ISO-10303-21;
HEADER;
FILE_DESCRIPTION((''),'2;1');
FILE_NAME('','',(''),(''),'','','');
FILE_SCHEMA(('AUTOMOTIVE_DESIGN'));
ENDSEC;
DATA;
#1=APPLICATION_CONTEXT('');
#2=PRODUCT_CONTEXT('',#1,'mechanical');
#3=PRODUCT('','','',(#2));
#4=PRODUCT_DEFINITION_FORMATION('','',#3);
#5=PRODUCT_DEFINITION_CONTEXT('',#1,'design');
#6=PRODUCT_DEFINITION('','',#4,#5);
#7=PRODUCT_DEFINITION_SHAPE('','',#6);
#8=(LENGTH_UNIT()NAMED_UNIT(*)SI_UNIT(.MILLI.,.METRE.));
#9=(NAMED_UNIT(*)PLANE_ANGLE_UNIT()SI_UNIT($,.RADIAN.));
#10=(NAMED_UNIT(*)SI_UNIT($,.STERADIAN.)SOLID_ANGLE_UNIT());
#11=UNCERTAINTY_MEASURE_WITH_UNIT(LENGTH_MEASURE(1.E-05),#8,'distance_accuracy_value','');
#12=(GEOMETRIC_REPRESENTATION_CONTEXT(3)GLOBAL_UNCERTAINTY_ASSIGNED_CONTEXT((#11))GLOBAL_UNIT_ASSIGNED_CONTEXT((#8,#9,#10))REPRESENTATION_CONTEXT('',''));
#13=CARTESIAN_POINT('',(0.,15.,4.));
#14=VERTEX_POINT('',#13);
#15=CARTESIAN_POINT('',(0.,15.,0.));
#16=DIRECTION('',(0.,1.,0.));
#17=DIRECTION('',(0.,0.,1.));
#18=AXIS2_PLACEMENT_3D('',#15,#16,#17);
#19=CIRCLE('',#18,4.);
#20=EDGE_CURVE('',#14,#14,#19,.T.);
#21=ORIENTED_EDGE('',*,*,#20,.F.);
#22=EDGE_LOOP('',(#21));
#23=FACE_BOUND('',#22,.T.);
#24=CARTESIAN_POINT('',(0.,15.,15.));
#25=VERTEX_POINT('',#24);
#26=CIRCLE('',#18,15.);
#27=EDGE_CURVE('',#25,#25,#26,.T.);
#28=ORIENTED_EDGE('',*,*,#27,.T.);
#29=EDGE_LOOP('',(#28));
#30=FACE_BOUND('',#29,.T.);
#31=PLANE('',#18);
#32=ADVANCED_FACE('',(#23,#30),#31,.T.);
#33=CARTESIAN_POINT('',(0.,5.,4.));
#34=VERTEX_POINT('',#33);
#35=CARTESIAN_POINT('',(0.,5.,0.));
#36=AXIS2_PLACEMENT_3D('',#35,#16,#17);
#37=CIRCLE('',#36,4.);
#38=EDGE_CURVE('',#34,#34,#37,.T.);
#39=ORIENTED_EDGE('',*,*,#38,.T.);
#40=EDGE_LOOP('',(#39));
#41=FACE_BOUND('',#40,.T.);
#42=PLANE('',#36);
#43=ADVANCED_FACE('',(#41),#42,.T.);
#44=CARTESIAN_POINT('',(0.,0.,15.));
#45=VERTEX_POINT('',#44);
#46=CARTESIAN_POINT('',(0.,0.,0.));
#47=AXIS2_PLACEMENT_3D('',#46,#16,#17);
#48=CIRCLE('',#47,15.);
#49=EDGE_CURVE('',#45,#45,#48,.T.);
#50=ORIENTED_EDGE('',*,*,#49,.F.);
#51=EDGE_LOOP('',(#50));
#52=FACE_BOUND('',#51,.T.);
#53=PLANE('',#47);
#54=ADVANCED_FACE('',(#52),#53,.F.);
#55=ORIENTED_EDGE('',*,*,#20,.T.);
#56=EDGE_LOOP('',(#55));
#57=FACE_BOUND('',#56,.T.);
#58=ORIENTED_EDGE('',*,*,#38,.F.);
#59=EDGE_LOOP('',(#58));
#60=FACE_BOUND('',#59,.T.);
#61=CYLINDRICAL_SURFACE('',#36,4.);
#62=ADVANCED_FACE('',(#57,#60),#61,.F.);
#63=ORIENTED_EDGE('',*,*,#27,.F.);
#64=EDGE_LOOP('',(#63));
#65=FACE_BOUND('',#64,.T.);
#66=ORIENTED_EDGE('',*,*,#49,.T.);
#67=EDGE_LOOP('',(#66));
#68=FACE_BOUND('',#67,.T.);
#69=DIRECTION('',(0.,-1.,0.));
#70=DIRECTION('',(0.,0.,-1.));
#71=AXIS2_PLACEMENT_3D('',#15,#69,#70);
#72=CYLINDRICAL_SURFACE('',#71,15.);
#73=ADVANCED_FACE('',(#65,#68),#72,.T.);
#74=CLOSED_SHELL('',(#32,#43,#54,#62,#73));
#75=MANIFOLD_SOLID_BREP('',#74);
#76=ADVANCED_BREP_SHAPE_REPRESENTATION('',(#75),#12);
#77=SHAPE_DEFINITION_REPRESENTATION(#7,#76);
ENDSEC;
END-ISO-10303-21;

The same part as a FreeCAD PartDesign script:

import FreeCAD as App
import Part
import Sketcher
Q = App.Units.Quantity

doc = App.newDocument("Part")
body = doc.addObject("PartDesign::Body", "Body")

# Sketch on XZ plane
sketch1 = doc.addObject("Sketcher::SketchObject", "Sketch")
body.addObject(sketch1)
sketch1.AttachmentSupport = (doc.XZ_Plane, [""])
sketch1.MapMode = "FlatFace"
sketch1.addGeometry(Part.Circle(App.Vector(0, 0, 0), App.Vector(0, 0, 1), 15), False)
sketch1.addConstraint(Sketcher.Constraint("Coincident", 0, 3, -1, 1))
sketch1.addConstraint(Sketcher.Constraint("Diameter", 0, Q("30 mm")))
pad1 = doc.addObject("PartDesign::Pad", "Pad")
body.addObject(pad1)
pad1.Profile = sketch1
pad1.Length = 15
pad1.Reversed = True

# Sketch on XZ plane
sketch2 = doc.addObject("Sketcher::SketchObject", "Sketch001")
body.addObject(sketch2)
sketch2.AttachmentSupport = (doc.XZ_Plane, [""])
sketch2.MapMode = "FlatFace"
sketch2.AttachmentOffset = App.Placement(App.Vector(0, 0, -15), App.Rotation())
sketch2.addGeometry(Part.Circle(App.Vector(0, 0, 0), App.Vector(0, 0, 1), 4), False)
sketch2.addConstraint(Sketcher.Constraint("Coincident", 0, 3, -1, 1))
sketch2.addConstraint(Sketcher.Constraint("Diameter", 0, Q("8 mm")))
pocket1 = doc.addObject("PartDesign::Pocket", "Pocket")
body.addObject(pocket1)
pocket1.Profile = sketch2
pocket1.Length = 10
pocket1.Reversed = True

doc.recompute()
